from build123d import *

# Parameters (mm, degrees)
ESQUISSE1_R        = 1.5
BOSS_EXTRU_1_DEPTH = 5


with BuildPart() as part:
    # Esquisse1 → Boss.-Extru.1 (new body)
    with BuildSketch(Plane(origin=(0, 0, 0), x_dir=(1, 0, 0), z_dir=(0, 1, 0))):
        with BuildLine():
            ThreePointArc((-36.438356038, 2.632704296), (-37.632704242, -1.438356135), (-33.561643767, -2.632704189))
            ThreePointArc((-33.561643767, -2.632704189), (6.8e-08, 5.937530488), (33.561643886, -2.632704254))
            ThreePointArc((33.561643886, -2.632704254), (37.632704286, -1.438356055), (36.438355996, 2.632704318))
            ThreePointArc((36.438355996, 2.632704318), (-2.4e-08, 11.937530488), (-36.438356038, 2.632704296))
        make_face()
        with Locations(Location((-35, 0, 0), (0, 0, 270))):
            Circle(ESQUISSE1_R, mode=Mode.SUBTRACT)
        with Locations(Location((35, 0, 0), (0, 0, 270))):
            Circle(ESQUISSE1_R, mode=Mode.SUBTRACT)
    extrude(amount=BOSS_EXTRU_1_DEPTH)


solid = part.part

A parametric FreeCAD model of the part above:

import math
import FreeCAD as App
import Part
import Sketcher
from FreeCAD import Vector
Q = App.Units.Quantity

doc = App.newDocument("Part")
params = doc.addObject("Spreadsheet::Sheet", "Params")
for row, (alias, value) in enumerate([
    ("sketch1_diameter", "3 mm"),
    ("sketch1_radius", "3 mm"),
    ("sketch1_radius2", "70 mm"),
    ("pad1_length", "5 mm"),
], start=1):
    params.set(f"A{row}", alias)
    params.set(f"B{row}", "=" + value)
    params.setAlias(f"B{row}", alias)

body = doc.addObject("PartDesign::Body", "Body")

# Sketch on XZ plane
sketch1 = body.newObject("Sketcher::SketchObject", "Sketch")
sketch1.AttachmentSupport = (doc.getObject("XZ_Plane"), [""])
sketch1.MapMode = "FlatFace"
sketch1.addGeometry(Part.ArcOfCircle(Part.Circle(Vector(-35, 0, 0), Vector(0, 0, 1), 3), math.radians(61), math.radians(241)), False)
sketch1.addGeometry(Part.ArcOfCircle(Part.Circle(Vector(0, 64.1, 0), Vector(0, 0, 1), 70), math.radians(-119), math.radians(-61)), False)
sketch1.addGeometry(Part.ArcOfCircle(Part.Circle(Vector(35, 0, 0), Vector(0, 0, 1), 3), math.radians(-61), math.radians(119)), False)
sketch1.addGeometry(Part.ArcOfCircle(Part.Circle(Vector(0, 64.1, 0), Vector(0, 0, 1), 76), math.radians(-119), math.radians(-61)), False)
sketch1.addGeometry(Part.Circle(Vector(-35, 0, 0), Vector(0, 0, 1), 1.5), False)
sketch1.addGeometry(Part.Circle(Vector(35, 0, 0), Vector(0, 0, 1), 1.5), False)
sketch1.addConstraint(Sketcher.Constraint("Tangent", 0, 1, 1, 1))
sketch1.addConstraint(Sketcher.Constraint("Tangent", 1, 2, 2, 2))
sketch1.addConstraint(Sketcher.Constraint("Tangent", 2, 1, 3, 2))
sketch1.addConstraint(Sketcher.Constraint("Tangent", 3, 1, 0, 2))
sketch1.addConstraint(Sketcher.Constraint("Coincident", 3, 3, 1, 3))
sketch1.addConstraint(Sketcher.Constraint("Coincident", 4, 3, 0, 3))
sketch1.addConstraint(Sketcher.Constraint("Coincident", 5, 3, 2, 3))
sketch1.addConstraint(Sketcher.Constraint("Equal", 4, 5))
sketch1.addConstraint(Sketcher.Constraint("Symmetric", 0, 3, 2, 3, -1, 1))
sketch1.addConstraint(Sketcher.Constraint("PointOnObject", 0, 3, -1))
sketch1.addConstraint(Sketcher.Constraint("Diameter", 4, Q("3 mm")))
sketch1.addConstraint(Sketcher.Constraint("Radius", 0, Q("3 mm")))
sketch1.addConstraint(Sketcher.Constraint("Radius", 1, Q("70 mm")))
sketch1.addConstraint(Sketcher.Constraint("DistanceX", 0, 3, -1, 1, Q("35 mm")))
sketch1.setExpression("Constraints[10]", "Params.sketch1_diameter")
sketch1.setExpression("Constraints[11]", "Params.sketch1_radius")
sketch1.setExpression("Constraints[12]", "Params.sketch1_radius2")
pad1 = body.newObject("PartDesign::Pad", "Pad")
pad1.Profile = sketch1
pad1.setExpression("Length", "Params.pad1_length")
pad1.Reversed = True

doc.recompute()
